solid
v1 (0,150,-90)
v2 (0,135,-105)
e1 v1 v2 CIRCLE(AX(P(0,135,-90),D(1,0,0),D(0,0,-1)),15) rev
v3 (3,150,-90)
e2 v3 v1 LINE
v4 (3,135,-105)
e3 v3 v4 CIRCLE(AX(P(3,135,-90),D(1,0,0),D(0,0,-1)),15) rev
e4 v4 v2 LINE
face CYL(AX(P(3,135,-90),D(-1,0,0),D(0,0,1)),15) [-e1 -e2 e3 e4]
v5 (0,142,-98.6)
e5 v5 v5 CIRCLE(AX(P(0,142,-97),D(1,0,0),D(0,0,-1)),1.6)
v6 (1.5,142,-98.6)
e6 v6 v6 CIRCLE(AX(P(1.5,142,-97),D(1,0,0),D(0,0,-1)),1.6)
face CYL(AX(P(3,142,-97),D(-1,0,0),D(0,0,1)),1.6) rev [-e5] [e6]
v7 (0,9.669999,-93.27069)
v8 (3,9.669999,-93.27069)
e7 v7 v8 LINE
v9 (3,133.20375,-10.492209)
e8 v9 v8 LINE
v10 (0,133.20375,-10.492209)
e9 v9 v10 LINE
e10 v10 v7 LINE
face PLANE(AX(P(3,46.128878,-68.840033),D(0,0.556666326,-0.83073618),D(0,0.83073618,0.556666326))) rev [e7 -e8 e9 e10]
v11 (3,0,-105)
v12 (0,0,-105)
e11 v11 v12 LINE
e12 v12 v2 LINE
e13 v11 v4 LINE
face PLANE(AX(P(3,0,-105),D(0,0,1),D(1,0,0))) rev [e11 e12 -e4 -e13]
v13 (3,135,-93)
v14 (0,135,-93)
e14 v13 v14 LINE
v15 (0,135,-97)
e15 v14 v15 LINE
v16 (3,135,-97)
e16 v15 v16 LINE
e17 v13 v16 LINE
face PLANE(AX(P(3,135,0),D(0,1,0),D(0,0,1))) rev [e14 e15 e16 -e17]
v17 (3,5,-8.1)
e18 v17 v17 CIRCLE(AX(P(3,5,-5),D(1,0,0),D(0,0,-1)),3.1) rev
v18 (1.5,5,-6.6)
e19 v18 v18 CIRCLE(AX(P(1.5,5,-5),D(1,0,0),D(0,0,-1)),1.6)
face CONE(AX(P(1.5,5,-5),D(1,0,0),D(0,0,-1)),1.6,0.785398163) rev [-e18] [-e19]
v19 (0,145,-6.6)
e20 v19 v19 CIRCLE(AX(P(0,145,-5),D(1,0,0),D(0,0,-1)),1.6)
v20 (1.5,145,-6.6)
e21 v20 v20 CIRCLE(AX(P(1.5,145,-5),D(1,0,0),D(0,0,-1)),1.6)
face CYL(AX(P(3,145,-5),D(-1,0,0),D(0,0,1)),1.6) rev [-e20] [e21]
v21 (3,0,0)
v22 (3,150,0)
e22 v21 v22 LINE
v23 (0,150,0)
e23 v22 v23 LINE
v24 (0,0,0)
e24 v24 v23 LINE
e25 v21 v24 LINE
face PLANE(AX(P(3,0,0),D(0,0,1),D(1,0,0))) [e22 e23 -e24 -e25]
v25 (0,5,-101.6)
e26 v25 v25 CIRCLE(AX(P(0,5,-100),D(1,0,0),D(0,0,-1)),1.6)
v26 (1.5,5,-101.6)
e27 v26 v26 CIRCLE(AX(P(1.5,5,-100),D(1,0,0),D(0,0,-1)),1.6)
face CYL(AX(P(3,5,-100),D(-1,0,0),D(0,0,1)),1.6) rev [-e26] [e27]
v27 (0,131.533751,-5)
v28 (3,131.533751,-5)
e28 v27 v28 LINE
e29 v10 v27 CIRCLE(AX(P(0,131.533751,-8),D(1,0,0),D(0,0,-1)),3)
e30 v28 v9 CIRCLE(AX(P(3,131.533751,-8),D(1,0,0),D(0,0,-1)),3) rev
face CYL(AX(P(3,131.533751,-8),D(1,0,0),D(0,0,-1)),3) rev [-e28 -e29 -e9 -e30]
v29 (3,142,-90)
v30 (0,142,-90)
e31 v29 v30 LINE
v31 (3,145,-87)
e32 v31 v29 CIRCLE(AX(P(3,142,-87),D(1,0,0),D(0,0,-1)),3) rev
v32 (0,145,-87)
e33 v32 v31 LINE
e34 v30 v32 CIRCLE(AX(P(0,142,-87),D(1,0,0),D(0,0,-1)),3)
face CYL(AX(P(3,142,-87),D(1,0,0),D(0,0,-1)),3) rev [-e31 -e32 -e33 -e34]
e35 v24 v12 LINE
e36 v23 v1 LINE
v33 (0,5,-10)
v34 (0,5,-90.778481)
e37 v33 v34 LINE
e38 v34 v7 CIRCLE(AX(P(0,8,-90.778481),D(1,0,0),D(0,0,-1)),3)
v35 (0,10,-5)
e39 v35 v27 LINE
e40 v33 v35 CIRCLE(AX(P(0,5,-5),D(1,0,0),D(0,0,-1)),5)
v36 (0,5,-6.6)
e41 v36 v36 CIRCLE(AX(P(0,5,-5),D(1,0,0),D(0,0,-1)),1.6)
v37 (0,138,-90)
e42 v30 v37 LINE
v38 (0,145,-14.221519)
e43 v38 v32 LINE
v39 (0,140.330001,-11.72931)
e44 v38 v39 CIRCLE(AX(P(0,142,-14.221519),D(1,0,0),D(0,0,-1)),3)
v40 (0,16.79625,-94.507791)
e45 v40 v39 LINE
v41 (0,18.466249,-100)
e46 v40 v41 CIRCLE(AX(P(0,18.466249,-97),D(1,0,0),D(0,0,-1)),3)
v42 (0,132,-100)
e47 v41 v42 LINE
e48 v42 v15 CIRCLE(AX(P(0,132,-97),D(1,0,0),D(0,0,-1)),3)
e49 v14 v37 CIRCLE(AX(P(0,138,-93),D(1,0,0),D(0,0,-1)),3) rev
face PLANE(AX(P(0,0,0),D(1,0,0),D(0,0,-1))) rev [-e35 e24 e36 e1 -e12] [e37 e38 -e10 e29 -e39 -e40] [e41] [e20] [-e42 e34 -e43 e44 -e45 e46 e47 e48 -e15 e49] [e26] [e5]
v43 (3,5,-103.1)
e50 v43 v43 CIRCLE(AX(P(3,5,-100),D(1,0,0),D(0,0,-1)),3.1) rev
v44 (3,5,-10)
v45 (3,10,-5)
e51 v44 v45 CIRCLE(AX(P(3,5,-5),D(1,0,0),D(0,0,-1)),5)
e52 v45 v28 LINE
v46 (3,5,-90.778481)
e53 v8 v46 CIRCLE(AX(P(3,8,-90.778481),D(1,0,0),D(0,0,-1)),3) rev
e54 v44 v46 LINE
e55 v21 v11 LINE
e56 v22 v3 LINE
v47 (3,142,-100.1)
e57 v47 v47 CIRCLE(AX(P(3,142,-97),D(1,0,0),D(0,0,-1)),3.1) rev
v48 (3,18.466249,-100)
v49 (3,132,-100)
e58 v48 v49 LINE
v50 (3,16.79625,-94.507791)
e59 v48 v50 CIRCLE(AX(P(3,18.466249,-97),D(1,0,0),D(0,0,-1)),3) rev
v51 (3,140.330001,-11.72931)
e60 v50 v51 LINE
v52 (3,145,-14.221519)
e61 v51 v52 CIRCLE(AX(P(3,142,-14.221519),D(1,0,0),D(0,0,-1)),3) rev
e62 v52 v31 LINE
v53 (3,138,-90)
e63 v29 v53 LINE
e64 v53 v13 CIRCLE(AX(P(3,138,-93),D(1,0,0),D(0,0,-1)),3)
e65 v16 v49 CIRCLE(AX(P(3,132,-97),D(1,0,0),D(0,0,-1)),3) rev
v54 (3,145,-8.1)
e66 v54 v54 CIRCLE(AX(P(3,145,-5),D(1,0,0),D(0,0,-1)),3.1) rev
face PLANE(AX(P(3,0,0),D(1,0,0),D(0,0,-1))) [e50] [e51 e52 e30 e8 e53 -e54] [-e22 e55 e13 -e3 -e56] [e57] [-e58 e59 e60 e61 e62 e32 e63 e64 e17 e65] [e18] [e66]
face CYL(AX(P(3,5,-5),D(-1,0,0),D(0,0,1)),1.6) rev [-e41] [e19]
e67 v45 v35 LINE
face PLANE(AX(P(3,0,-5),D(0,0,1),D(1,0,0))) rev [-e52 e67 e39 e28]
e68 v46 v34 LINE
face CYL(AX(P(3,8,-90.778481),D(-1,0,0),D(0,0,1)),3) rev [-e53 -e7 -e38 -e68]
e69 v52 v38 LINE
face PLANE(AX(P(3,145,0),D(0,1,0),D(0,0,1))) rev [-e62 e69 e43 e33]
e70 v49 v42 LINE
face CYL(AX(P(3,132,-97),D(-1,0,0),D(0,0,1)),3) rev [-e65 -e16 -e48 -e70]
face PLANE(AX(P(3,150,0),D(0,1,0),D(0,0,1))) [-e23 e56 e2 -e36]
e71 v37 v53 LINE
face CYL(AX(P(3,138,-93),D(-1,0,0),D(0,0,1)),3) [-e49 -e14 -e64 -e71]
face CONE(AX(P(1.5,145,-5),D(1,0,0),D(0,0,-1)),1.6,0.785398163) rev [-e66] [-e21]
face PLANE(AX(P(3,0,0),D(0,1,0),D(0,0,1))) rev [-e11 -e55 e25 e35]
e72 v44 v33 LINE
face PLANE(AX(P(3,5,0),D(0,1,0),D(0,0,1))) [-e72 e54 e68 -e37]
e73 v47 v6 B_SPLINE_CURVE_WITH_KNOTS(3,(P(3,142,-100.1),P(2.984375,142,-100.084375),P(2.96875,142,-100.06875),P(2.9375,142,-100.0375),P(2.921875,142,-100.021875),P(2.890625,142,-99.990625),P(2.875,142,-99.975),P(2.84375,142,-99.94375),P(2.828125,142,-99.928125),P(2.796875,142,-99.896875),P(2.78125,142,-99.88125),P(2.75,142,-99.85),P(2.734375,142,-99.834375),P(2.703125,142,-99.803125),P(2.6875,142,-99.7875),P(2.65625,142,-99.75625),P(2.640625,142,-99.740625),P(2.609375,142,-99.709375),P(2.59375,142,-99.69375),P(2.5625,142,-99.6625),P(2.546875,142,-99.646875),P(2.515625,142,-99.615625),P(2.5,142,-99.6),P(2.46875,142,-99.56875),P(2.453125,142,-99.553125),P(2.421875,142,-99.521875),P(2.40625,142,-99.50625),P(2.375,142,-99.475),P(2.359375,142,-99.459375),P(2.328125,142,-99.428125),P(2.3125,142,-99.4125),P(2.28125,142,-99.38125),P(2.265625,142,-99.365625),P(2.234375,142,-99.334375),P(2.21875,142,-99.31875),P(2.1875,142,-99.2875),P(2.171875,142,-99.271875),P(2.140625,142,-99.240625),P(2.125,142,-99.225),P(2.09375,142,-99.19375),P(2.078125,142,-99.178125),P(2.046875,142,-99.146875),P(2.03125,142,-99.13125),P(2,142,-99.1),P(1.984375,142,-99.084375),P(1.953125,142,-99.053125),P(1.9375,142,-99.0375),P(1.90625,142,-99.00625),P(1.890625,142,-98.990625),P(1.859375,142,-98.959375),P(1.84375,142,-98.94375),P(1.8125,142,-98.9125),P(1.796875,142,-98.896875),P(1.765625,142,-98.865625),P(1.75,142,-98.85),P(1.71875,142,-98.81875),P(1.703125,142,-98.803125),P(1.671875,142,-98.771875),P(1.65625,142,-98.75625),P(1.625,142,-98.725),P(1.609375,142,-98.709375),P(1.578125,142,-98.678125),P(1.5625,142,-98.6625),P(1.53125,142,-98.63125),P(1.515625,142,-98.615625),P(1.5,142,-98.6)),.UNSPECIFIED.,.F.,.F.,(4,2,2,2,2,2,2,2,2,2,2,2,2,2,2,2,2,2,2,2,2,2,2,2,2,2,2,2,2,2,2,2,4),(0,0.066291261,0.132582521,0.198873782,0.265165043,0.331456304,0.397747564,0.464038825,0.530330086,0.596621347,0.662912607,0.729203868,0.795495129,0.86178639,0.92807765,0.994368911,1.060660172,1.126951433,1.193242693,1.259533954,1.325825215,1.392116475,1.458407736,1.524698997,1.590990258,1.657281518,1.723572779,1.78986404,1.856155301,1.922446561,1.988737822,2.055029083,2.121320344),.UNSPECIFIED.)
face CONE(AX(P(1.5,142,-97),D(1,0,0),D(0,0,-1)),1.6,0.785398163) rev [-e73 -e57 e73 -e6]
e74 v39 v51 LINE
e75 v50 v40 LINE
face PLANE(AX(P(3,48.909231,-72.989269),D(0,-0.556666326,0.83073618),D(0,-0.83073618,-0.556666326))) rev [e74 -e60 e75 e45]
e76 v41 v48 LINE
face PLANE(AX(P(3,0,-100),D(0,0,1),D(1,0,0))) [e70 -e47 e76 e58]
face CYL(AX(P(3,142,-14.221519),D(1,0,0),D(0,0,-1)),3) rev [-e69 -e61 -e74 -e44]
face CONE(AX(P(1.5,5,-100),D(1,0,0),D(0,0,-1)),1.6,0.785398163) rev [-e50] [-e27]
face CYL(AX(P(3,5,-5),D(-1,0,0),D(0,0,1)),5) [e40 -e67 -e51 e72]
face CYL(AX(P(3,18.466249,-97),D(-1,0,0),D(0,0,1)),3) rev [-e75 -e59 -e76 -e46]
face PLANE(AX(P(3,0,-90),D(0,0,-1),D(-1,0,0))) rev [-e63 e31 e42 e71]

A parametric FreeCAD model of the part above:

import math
import FreeCAD as App
import Part
import Sketcher
from FreeCAD import Vector


def edges_at(feature, points):
    """Names of the edges that pass closest to the given points."""
    edges = feature.Shape.Edges
    near = lambda p: min(range(len(edges)), key=lambda i: edges[i].distToShape(Part.Vertex(*p))[0])
    return sorted({f"Edge{near(p) + 1}" for p in points})


def add_polygon(sketch, points):
    """Adds a closed chain of lines whose ends are joined by coincident constraints."""
    first, n = sketch.GeometryCount, len(points)
    for a, b in zip(points, points[1:] + points[:1]):
        sketch.addGeometry(Part.LineSegment(App.Vector(*a, 0), App.Vector(*b, 0)), False)
    for i in range(n):
        sketch.addConstraint(Sketcher.Constraint("Coincident", first + i, 2, first + (i + 1) % n, 1))

doc = App.newDocument("Part")
body = doc.addObject("PartDesign::Body", "Body")

# Sketch on YZ plane
sketch1 = doc.addObject("Sketcher::SketchObject", "Sketch")
body.addObject(sketch1)
sketch1.AttachmentSupport = (doc.YZ_Plane, [""])
sketch1.MapMode = "FlatFace"
sketch1.addGeometry(Part.LineSegment(Vector(0, 0, 0), Vector(0, -105, 0)), False)  # 0
sketch1.addGeometry(Part.LineSegment(Vector(0, -105, 0), Vector(135, -105, 0)), False)  # 1
sketch1.addGeometry(Part.ArcOfCircle(Part.Circle(Vector(135, -90, 0), Vector(0, 0, 1), 15), math.radians(-90), math.radians(0)), False)  # 2
sketch1.addGeometry(Part.LineSegment(Vector(150, -90, 0), Vector(150, 0, 0)), False)  # 3
sketch1.addGeometry(Part.LineSegment(Vector(150, 0, 0), Vector(0, 0, 0)), False)  # 4
sketch1.addGeometry(Part.Circle(Vector(5, -5, 0), Vector(0, 0, 1), 1.6), False)  # 5
sketch1.addGeometry(Part.ArcOfCircle(Part.Circle(Vector(5, -5, 0), Vector(0, 0, 1), 5), math.radians(-90), math.radians(0)), False)  # 6
sketch1.addGeometry(Part.LineSegment(Vector(10, -5, 0), Vector(141.4, -5, 0)), False)  # 7
sketch1.addGeometry(Part.LineSegment(Vector(141.4, -5, 0), Vector(5, -96.4, 0)), False)  # 8
sketch1.addGeometry(Part.LineSegment(Vector(5, -96.4, 0), Vector(5, -10, 0)), False)  # 9
sketch1.addGeometry(Part.Circle(Vector(5, -100, 0), Vector(0, 0, 1), 1.6), False)  # 10
sketch1.addGeometry(Part.Circle(Vector(145, -5, 0), Vector(0, 0, 1), 1.6), False)  # 11
add_polygon(sketch1, [(8.6, -100), (145, -8.6), (145, -90), (135, -90), (135, -100)])  # lines 12-16
sketch1.addGeometry(Part.Circle(Vector(142, -97, 0), Vector(0, 0, 1), 1.6), False)  # 17
sketch1.addConstraint(Sketcher.Constraint("Coincident", 0, 2, 1, 1))
sketch1.addConstraint(Sketcher.Constraint("Tangent", 1, 2, 2, 1))
sketch1.addConstraint(Sketcher.Constraint("Tangent", 2, 2, 3, 1))
sketch1.addConstraint(Sketcher.Constraint("Coincident", 3, 2, 4, 1))
sketch1.addConstraint(Sketcher.Constraint("Coincident", 4, 2, 0, 1))
sketch1.addConstraint(Sketcher.Constraint("Coincident", 6, 2, 7, 1))
sketch1.addConstraint(Sketcher.Constraint("Coincident", 7, 2, 8, 1))
sketch1.addConstraint(Sketcher.Constraint("Coincident", 8, 2, 9, 1))
sketch1.addConstraint(Sketcher.Constraint("Coincident", 9, 2, 6, 1))
sketch1.addConstraint(Sketcher.Constraint("Vertical", 0))
sketch1.addConstraint(Sketcher.Constraint("Horizontal", 1))
sketch1.addConstraint(Sketcher.Constraint("Vertical", 3))
sketch1.addConstraint(Sketcher.Constraint("Horizontal", 4))
sketch1.addConstraint(Sketcher.Constraint("Horizontal", 7))
sketch1.addConstraint(Sketcher.Constraint("Vertical", 9))
sketch1.addConstraint(Sketcher.Constraint("Vertical", 13))
sketch1.addConstraint(Sketcher.Constraint("Horizontal", 14))
sketch1.addConstraint(Sketcher.Constraint("Vertical", 15))
sketch1.addConstraint(Sketcher.Constraint("Horizontal", 16))
sketch1.addConstraint(Sketcher.Constraint("Coincident", 4, 2, -1, 1))
sketch1.addConstraint(Sketcher.Constraint("Coincident", 6, 3, 5, 3))
sketch1.addConstraint(Sketcher.Constraint("Coincident", 14, 2, 2, 3))
sketch1.addConstraint(Sketcher.Constraint("Equal", 5, 10))
sketch1.addConstraint(Sketcher.Constraint("Equal", 10, 11))
sketch1.addConstraint(Sketcher.Constraint("Equal", 11, 17))
sketch1.addConstraint(Sketcher.Constraint("Parallel", 8, 12))
sketch1.addConstraint(Sketcher.Constraint("Horizontal", 6, 3, 11, 3))
sketch1.addConstraint(Sketcher.Constraint("Horizontal", 11, 3, 6, 2))
sketch1.addConstraint(Sketcher.Constraint("Horizontal", 10, 3, 15, 2))
sketch1.addConstraint(Sketcher.Constraint("Vertical", 6, 3, 10, 3))
sketch1.addConstraint(Sketcher.Constraint("Vertical", 10, 3, 8, 2))
sketch1.addConstraint(Sketcher.Constraint("Vertical", 11, 3, 12, 2))
sketch1.addConstraint(Sketcher.Constraint("Equal", 14, 15))
sketch1.addConstraint(Sketcher.Constraint("Equal", 8, 12))
sketch1.addConstraint(Sketcher.Constraint("Radius", 2, 15.0))
sketch1.addConstraint(Sketcher.Constraint("Radius", 6, 5.0))
sketch1.addConstraint(Sketcher.Constraint("Diameter", 5, 3.2))
sketch1.addConstraint(Sketcher.Constraint("DistanceX", 1, 1, 1, 2, 135.0))
sketch1.addConstraint(Sketcher.Constraint("DistanceX", 14, 2, 14, 1, 10.0))
sketch1.addConstraint(Sketcher.Constraint("DistanceY", 0, 2, 0, 1, 105.0))
sketch1.addConstraint(Sketcher.Constraint("DistanceX", 7, 1, 7, 2, 131.4))
sketch1.addConstraint(Sketcher.Constraint("DistanceY", 9, 1, 9, 2, 86.4))
sketch1.addConstraint(Sketcher.Constraint("DistanceX", -1, 1, 5, 3, 5.0))
sketch1.addConstraint(Sketcher.Constraint("DistanceY", 5, 3, -1, 1, 5.0))
sketch1.addConstraint(Sketcher.Constraint("DistanceX", -1, 1, 17, 3, 142.0))
sketch1.addConstraint(Sketcher.Constraint("DistanceY", 17, 3, -1, 1, 97.0))
pad1 = doc.addObject("PartDesign::Pad", "Pad")
body.addObject(pad1)
pad1.Profile = sketch1
pad1.Length = 3
doc.recompute()

fillet = doc.addObject("PartDesign::Fillet", "Fillet")
body.addObject(fillet)
fillet.Base = (pad1, edges_at(pad1, [
    (1.5, 5, -96.4),
    (1.5, 141.4, -5),
    (1.5, 145, -90),
    (1.5, 145, -8.6),
    (1.5, 8.6, -100),
    (1.5, 135, -100),
    (1.5, 135, -90),
]))
fillet.Radius = 3
doc.recompute()

chamfer = doc.addObject("PartDesign::Chamfer", "Chamfer")
body.addObject(chamfer)
chamfer.Base = (fillet, edges_at(fillet, [
    (3, 5, -3.4),
    (3, 5, -98.4),
    (3, 142, -95.4),
    (3, 145, -3.4),
]))
chamfer.Size = 1.5

doc.recompute()
